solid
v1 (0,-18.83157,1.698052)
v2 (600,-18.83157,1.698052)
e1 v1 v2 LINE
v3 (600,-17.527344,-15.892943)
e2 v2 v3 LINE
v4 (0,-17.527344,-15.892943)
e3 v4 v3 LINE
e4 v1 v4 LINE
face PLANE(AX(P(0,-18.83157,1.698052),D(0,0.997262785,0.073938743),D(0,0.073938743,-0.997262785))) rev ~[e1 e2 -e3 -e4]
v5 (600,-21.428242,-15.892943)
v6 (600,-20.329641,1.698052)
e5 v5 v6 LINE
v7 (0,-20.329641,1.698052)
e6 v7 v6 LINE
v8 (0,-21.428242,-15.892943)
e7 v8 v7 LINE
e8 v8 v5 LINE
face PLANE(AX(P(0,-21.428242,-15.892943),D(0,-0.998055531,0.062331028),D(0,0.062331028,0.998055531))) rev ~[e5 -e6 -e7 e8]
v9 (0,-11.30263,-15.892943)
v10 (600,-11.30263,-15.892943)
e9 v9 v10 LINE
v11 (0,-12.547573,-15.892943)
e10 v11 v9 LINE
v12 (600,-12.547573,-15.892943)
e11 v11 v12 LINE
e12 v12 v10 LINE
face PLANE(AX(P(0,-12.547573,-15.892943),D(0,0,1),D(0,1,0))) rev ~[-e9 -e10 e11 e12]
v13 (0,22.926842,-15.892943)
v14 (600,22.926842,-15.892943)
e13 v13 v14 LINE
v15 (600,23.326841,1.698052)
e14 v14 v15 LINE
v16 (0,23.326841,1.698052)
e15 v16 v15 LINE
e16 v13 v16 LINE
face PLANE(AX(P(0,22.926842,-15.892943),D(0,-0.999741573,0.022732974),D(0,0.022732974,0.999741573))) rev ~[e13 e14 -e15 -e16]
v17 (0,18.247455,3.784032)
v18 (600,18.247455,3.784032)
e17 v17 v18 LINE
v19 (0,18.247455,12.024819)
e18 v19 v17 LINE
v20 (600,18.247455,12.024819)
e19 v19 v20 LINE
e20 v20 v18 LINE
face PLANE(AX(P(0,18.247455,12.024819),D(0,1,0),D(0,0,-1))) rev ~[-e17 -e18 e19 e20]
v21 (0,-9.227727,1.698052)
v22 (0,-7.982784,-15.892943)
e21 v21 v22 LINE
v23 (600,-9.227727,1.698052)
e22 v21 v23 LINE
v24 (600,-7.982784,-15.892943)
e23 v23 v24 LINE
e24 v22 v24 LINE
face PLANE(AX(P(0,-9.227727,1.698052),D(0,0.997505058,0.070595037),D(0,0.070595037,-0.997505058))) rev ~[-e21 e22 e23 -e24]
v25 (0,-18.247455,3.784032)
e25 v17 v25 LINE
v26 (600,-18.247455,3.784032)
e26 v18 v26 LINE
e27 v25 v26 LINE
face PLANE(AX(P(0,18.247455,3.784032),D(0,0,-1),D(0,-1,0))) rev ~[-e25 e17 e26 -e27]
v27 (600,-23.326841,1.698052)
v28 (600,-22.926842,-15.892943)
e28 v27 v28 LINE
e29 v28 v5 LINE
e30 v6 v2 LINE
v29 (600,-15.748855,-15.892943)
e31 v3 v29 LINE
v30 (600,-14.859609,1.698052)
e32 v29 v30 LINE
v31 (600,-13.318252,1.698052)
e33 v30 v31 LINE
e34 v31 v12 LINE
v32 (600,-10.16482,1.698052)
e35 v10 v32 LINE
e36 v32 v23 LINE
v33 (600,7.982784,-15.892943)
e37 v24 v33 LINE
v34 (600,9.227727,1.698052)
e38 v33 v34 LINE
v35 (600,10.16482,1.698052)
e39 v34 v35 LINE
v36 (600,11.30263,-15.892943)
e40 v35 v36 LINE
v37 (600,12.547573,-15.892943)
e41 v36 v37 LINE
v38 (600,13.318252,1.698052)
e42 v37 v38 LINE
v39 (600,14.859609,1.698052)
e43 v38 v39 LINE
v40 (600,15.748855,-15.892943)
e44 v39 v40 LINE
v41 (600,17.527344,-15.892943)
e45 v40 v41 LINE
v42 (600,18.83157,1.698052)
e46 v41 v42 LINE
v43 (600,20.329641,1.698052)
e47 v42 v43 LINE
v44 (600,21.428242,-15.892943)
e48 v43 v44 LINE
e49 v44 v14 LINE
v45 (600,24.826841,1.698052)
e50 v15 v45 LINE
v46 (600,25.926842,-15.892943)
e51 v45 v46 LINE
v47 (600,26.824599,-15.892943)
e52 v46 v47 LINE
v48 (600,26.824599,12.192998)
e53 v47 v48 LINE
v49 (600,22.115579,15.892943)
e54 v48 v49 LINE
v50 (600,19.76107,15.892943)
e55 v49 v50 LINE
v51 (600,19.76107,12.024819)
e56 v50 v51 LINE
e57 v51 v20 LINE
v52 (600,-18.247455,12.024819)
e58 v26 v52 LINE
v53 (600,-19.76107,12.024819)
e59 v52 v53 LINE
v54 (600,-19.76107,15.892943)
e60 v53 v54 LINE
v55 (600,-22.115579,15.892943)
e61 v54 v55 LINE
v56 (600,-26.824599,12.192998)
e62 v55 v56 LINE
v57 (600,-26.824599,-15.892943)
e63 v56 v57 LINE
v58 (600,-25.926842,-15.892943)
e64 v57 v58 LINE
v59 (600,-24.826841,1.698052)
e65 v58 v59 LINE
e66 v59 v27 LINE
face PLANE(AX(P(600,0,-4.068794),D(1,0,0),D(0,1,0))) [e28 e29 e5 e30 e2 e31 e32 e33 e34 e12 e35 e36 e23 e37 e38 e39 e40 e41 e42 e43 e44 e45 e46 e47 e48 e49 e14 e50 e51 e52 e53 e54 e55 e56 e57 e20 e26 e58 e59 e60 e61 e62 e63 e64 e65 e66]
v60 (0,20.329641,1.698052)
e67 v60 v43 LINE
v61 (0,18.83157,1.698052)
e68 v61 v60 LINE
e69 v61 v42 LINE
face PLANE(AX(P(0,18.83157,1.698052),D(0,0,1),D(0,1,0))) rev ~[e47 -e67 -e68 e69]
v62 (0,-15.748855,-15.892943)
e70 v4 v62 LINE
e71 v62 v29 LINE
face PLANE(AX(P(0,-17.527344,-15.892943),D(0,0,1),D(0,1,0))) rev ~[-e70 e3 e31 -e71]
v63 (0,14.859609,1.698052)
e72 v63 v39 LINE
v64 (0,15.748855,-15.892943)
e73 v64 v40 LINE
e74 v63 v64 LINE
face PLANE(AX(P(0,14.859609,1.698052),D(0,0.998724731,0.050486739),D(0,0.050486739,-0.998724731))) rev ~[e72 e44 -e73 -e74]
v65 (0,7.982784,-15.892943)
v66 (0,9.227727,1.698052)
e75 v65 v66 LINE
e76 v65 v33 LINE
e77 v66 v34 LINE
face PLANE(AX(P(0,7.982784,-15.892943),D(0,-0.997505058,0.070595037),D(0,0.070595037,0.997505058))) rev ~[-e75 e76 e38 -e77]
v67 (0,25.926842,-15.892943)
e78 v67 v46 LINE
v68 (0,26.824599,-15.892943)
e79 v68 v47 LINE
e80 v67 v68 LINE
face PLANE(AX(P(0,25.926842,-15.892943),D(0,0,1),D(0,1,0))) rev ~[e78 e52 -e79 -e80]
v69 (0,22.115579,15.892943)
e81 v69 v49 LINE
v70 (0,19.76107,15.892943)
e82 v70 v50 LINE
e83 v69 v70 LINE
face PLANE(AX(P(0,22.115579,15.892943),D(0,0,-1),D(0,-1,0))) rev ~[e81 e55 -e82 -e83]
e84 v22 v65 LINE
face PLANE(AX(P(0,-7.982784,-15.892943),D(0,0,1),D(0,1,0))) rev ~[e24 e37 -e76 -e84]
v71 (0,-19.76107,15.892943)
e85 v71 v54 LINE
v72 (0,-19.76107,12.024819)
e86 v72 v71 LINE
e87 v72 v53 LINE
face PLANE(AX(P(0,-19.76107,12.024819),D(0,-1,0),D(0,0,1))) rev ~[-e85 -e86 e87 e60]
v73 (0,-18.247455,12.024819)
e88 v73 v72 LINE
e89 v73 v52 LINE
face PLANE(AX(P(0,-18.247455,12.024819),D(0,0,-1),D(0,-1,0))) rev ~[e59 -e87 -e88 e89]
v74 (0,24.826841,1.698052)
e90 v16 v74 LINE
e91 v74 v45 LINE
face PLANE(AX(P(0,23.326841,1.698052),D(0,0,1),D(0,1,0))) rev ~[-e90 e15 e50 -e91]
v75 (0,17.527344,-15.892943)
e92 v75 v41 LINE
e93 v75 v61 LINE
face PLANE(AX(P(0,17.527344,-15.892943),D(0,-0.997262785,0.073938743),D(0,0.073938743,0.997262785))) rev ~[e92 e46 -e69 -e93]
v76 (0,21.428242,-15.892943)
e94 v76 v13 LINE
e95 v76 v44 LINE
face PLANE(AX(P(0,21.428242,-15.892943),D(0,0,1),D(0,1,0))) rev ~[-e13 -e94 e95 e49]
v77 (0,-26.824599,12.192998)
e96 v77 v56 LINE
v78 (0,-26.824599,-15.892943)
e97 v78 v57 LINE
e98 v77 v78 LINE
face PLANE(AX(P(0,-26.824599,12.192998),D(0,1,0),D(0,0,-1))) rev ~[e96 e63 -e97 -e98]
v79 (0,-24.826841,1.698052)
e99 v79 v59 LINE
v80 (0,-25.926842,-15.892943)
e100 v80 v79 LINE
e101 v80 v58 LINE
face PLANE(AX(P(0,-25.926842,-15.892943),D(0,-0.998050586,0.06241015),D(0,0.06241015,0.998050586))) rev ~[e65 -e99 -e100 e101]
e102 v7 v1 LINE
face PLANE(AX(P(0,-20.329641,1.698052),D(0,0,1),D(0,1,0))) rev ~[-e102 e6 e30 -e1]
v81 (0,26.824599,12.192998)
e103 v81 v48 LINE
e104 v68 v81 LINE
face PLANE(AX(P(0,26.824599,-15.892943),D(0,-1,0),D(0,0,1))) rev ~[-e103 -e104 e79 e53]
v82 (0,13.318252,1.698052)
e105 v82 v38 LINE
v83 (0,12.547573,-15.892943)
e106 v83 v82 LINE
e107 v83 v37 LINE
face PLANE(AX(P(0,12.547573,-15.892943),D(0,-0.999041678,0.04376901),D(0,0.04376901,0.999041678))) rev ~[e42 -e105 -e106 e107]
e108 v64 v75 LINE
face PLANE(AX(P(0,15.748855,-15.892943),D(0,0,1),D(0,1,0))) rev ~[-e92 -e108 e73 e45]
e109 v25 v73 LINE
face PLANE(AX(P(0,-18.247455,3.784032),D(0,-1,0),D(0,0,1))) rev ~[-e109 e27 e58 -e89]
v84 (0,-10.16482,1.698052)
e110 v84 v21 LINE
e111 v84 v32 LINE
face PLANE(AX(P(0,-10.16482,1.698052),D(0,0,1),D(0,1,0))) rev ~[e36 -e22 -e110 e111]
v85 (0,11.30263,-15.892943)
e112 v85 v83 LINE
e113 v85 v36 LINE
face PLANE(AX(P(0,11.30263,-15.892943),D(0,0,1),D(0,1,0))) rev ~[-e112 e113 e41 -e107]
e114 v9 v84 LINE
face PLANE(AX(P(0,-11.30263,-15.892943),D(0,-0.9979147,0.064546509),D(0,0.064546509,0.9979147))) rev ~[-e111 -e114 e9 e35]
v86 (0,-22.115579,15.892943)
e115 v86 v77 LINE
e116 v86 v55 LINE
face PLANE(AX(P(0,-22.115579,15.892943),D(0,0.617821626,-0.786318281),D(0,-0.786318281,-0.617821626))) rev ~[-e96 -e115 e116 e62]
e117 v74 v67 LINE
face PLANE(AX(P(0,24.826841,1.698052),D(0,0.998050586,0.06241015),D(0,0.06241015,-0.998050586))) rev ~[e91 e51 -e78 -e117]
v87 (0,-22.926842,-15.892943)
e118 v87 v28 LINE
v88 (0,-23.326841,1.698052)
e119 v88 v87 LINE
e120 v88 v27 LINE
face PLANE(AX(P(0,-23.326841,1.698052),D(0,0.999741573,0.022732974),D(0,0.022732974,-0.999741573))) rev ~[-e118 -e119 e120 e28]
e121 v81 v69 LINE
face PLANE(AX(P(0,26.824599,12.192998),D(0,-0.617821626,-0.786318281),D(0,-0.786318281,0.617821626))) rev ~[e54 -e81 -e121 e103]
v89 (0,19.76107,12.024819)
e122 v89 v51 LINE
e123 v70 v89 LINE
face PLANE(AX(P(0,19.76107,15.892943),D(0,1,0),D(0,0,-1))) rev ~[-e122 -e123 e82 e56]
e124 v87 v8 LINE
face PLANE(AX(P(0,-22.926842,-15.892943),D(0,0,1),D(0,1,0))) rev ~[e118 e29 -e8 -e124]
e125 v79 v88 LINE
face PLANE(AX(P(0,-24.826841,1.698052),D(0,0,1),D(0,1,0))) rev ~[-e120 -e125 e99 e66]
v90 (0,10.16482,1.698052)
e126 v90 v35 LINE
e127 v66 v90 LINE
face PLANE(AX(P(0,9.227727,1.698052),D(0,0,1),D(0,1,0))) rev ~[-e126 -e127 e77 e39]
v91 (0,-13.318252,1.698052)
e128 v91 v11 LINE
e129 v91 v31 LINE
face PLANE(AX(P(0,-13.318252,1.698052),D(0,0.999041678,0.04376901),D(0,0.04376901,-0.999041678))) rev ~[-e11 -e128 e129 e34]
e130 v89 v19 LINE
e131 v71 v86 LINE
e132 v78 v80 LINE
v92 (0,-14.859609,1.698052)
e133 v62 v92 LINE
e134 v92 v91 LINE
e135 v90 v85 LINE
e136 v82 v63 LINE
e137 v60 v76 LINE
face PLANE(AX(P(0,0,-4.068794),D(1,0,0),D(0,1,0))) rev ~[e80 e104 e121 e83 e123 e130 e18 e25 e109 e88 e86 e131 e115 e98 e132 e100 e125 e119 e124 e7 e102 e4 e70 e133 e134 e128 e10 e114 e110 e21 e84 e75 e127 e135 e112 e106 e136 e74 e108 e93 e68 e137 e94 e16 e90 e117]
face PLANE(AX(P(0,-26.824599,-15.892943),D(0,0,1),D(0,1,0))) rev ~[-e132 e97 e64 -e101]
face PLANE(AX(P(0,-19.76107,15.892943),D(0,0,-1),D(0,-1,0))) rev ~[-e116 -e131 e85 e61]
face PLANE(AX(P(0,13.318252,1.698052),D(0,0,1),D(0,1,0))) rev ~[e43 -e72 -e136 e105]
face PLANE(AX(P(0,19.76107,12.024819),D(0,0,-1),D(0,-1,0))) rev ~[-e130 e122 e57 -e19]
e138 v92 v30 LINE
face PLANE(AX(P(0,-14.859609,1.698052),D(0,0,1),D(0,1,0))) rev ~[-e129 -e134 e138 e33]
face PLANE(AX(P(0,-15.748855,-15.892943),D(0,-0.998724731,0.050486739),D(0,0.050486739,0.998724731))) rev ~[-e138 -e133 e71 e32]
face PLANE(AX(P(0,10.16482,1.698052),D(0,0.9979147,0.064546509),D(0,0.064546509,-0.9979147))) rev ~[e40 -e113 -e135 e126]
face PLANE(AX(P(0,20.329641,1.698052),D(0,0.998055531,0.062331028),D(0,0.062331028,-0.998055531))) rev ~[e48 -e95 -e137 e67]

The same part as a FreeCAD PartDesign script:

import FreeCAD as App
import Part
import Sketcher

doc = App.newDocument("Part")
body = doc.addObject("PartDesign::Body", "Body")

# Sketch on YZ plane
sketch1 = doc.addObject("Sketcher::SketchObject", "Sketch")
body.addObject(sketch1)
sketch1.AttachmentSupport = (doc.YZ_Plane, [""])
sketch1.MapMode = "FlatFace"
sketch1.addGeometry([
    Part.LineSegment(App.Vector(-19.76107, 15.892943, 0), App.Vector(-22.115579, 15.892943, 0)),  # 0
    Part.LineSegment(App.Vector(-22.115579, 15.892943, 0), App.Vector(-26.824599, 12.192998, 0)),  # 1
    Part.LineSegment(App.Vector(-26.824599, 12.192998, 0), App.Vector(-26.824599, -15.892943, 0)),  # 2
    Part.LineSegment(App.Vector(-26.824599, -15.892943, 0), App.Vector(-25.926842, -15.892943, 0)),  # 3
    Part.LineSegment(App.Vector(-25.926842, -15.892943, 0), App.Vector(-24.826841, 1.698052, 0)),  # 4
    Part.LineSegment(App.Vector(-24.826841, 1.698052, 0), App.Vector(-23.326841, 1.698052, 0)),  # 5
    Part.LineSegment(App.Vector(-23.326841, 1.698052, 0), App.Vector(-22.926842, -15.892943, 0)),  # 6
    Part.LineSegment(App.Vector(-22.926842, -15.892943, 0), App.Vector(-21.428242, -15.892943, 0)),  # 7
    Part.LineSegment(App.Vector(-21.428242, -15.892943, 0), App.Vector(-20.329641, 1.698052, 0)),  # 8
    Part.LineSegment(App.Vector(-20.329641, 1.698052, 0), App.Vector(-18.83157, 1.698052, 0)),  # 9
    Part.LineSegment(App.Vector(-18.83157, 1.698052, 0), App.Vector(-17.527344, -15.892943, 0)),  # 10
    Part.LineSegment(App.Vector(-17.527344, -15.892943, 0), App.Vector(-15.748855, -15.892943, 0)),  # 11
    Part.LineSegment(App.Vector(-15.748855, -15.892943, 0), App.Vector(-14.859609, 1.698052, 0)),  # 12
    Part.LineSegment(App.Vector(-14.859609, 1.698052, 0), App.Vector(-13.318252, 1.698052, 0)),  # 13
    Part.LineSegment(App.Vector(-13.318252, 1.698052, 0), App.Vector(-12.547573, -15.892943, 0)),  # 14
    Part.LineSegment(App.Vector(-12.547573, -15.892943, 0), App.Vector(-11.30263, -15.892943, 0)),  # 15
    Part.LineSegment(App.Vector(-11.30263, -15.892943, 0), App.Vector(-10.16482, 1.698052, 0)),  # 16
    Part.LineSegment(App.Vector(-10.16482, 1.698052, 0), App.Vector(-9.227727, 1.698052, 0)),  # 17
    Part.LineSegment(App.Vector(-9.227727, 1.698052, 0), App.Vector(-7.982784, -15.892943, 0)),  # 18
    Part.LineSegment(App.Vector(-7.982784, -15.892943, 0), App.Vector(7.982784, -15.892943, 0)),  # 19
    Part.LineSegment(App.Vector(7.982784, -15.892943, 0), App.Vector(9.227727, 1.698052, 0)),  # 20
    Part.LineSegment(App.Vector(9.227727, 1.698052, 0), App.Vector(10.16482, 1.698052, 0)),  # 21
    Part.LineSegment(App.Vector(10.16482, 1.698052, 0), App.Vector(11.30263, -15.892943, 0)),  # 22
    Part.LineSegment(App.Vector(11.30263, -15.892943, 0), App.Vector(12.547573, -15.892943, 0)),  # 23
    Part.LineSegment(App.Vector(12.547573, -15.892943, 0), App.Vector(13.318252, 1.698052, 0)),  # 24
    Part.LineSegment(App.Vector(13.318252, 1.698052, 0), App.Vector(14.859609, 1.698052, 0)),  # 25
    Part.LineSegment(App.Vector(14.859609, 1.698052, 0), App.Vector(15.748855, -15.892943, 0)),  # 26
    Part.LineSegment(App.Vector(15.748855, -15.892943, 0), App.Vector(17.527344, -15.892943, 0)),  # 27
    Part.LineSegment(App.Vector(17.527344, -15.892943, 0), App.Vector(18.83157, 1.698052, 0)),  # 28
    Part.LineSegment(App.Vector(18.83157, 1.698052, 0), App.Vector(20.329641, 1.698052, 0)),  # 29
    Part.LineSegment(App.Vector(20.329641, 1.698052, 0), App.Vector(21.428242, -15.892943, 0)),  # 30
    Part.LineSegment(App.Vector(21.428242, -15.892943, 0), App.Vector(22.926842, -15.892943, 0)),  # 31
    Part.LineSegment(App.Vector(22.926842, -15.892943, 0), App.Vector(23.326841, 1.698052, 0)),  # 32
    Part.LineSegment(App.Vector(23.326841, 1.698052, 0), App.Vector(24.826841, 1.698052, 0)),  # 33
    Part.LineSegment(App.Vector(24.826841, 1.698052, 0), App.Vector(25.926842, -15.892943, 0)),  # 34
    Part.LineSegment(App.Vector(25.926842, -15.892943, 0), App.Vector(26.824599, -15.892943, 0)),  # 35
    Part.LineSegment(App.Vector(26.824599, -15.892943, 0), App.Vector(26.824599, 12.192998, 0)),  # 36
    Part.LineSegment(App.Vector(26.824599, 12.192998, 0), App.Vector(22.115579, 15.892943, 0)),  # 37
    Part.LineSegment(App.Vector(22.115579, 15.892943, 0), App.Vector(19.76107, 15.892943, 0)),  # 38
    Part.LineSegment(App.Vector(19.76107, 15.892943, 0), App.Vector(19.76107, 12.024819, 0)),  # 39
    Part.LineSegment(App.Vector(19.76107, 12.024819, 0), App.Vector(18.247455, 12.024819, 0)),  # 40
    Part.LineSegment(App.Vector(18.247455, 12.024819, 0), App.Vector(18.247455, 3.784032, 0)),  # 41
    Part.LineSegment(App.Vector(18.247455, 3.784032, 0), App.Vector(-18.247455, 3.784032, 0)),  # 42
    Part.LineSegment(App.Vector(-18.247455, 3.784032, 0), App.Vector(-18.247455, 12.024819, 0)),  # 43
    Part.LineSegment(App.Vector(-18.247455, 12.024819, 0), App.Vector(-19.76107, 12.024819, 0)),  # 44
    Part.LineSegment(App.Vector(-19.76107, 12.024819, 0), App.Vector(-19.76107, 15.892943, 0)),  # 45
], False)
sketch1.addConstraint([
    Sketcher.Constraint("Coincident", 0, 2, 1, 1),
    Sketcher.Constraint("Coincident", 1, 2, 2, 1),
    Sketcher.Constraint("Coincident", 2, 2, 3, 1),
    Sketcher.Constraint("Coincident", 3, 2, 4, 1),
    Sketcher.Constraint("Coincident", 4, 2, 5, 1),
    Sketcher.Constraint("Coincident", 5, 2, 6, 1),
    Sketcher.Constraint("Coincident", 6, 2, 7, 1),
    Sketcher.Constraint("Coincident", 7, 2, 8, 1),
    Sketcher.Constraint("Coincident", 8, 2, 9, 1),
    Sketcher.Constraint("Coincident", 9, 2, 10, 1),
    Sketcher.Constraint("Coincident", 10, 2, 11, 1),
    Sketcher.Constraint("Coincident", 11, 2, 12, 1),
    Sketcher.Constraint("Coincident", 12, 2, 13, 1),
    Sketcher.Constraint("Coincident", 13, 2, 14, 1),
    Sketcher.Constraint("Coincident", 14, 2, 15, 1),
    Sketcher.Constraint("Coincident", 15, 2, 16, 1),
    Sketcher.Constraint("Coincident", 16, 2, 17, 1),
    Sketcher.Constraint("Coincident", 17, 2, 18, 1),
    Sketcher.Constraint("Coincident", 18, 2, 19, 1),
    Sketcher.Constraint("Coincident", 19, 2, 20, 1),
    Sketcher.Constraint("Coincident", 20, 2, 21, 1),
    Sketcher.Constraint("Coincident", 21, 2, 22, 1),
    Sketcher.Constraint("Coincident", 22, 2, 23, 1),
    Sketcher.Constraint("Coincident", 23, 2, 24, 1),
    Sketcher.Constraint("Coincident", 24, 2, 25, 1),
    Sketcher.Constraint("Coincident", 25, 2, 26, 1),
    Sketcher.Constraint("Coincident", 26, 2, 27, 1),
    Sketcher.Constraint("Coincident", 27, 2, 28, 1),
    Sketcher.Constraint("Coincident", 28, 2, 29, 1),
    Sketcher.Constraint("Coincident", 29, 2, 30, 1),
    Sketcher.Constraint("Coincident", 30, 2, 31, 1),
    Sketcher.Constraint("Coincident", 31, 2, 32, 1),
    Sketcher.Constraint("Coincident", 32, 2, 33, 1),
    Sketcher.Constraint("Coincident", 33, 2, 34, 1),
    Sketcher.Constraint("Coincident", 34, 2, 35, 1),
    Sketcher.Constraint("Coincident", 35, 2, 36, 1),
    Sketcher.Constraint("Coincident", 36, 2, 37, 1),
    Sketcher.Constraint("Coincident", 37, 2, 38, 1),
    Sketcher.Constraint("Coincident", 38, 2, 39, 1),
    Sketcher.Constraint("Coincident", 39, 2, 40, 1),
    Sketcher.Constraint("Coincident", 40, 2, 41, 1),
    Sketcher.Constraint("Coincident", 41, 2, 42, 1),
    Sketcher.Constraint("Coincident", 42, 2, 43, 1),
    Sketcher.Constraint("Coincident", 43, 2, 44, 1),
    Sketcher.Constraint("Coincident", 44, 2, 45, 1),
    Sketcher.Constraint("Coincident", 45, 2, 0, 1),
    Sketcher.Constraint("Horizontal", 0),
    Sketcher.Constraint("Vertical", 2),
    Sketcher.Constraint("Horizontal", 3),
    Sketcher.Constraint("Horizontal", 5),
    Sketcher.Constraint("Horizontal", 7),
    Sketcher.Constraint("Horizontal", 9),
    Sketcher.Constraint("Horizontal", 11),
    Sketcher.Constraint("Horizontal", 13),
    Sketcher.Constraint("Horizontal", 15),
    Sketcher.Constraint("Horizontal", 17),
    Sketcher.Constraint("Horizontal", 19),
    Sketcher.Constraint("Horizontal", 21),
    Sketcher.Constraint("Horizontal", 23),
    Sketcher.Constraint("Horizontal", 25),
    Sketcher.Constraint("Horizontal", 27),
    Sketcher.Constraint("Horizontal", 29),
    Sketcher.Constraint("Horizontal", 31),
    Sketcher.Constraint("Horizontal", 33),
    Sketcher.Constraint("Horizontal", 35),
    Sketcher.Constraint("Vertical", 36),
    Sketcher.Constraint("Horizontal", 38),
    Sketcher.Constraint("Vertical", 39),
    Sketcher.Constraint("Horizontal", 40),
    Sketcher.Constraint("Vertical", 41),
    Sketcher.Constraint("Horizontal", 42),
    Sketcher.Constraint("Vertical", 43),
    Sketcher.Constraint("Horizontal", 44),
    Sketcher.Constraint("Vertical", 45),
    Sketcher.Constraint("Symmetric", 17, 2, 20, 2, -2),
    Sketcher.Constraint("Symmetric", 15, 2, 22, 2, -2),
    Sketcher.Constraint("Symmetric", 13, 2, 24, 2, -2),
    Sketcher.Constraint("Symmetric", 11, 2, 26, 2, -2),
    Sketcher.Constraint("Symmetric", 9, 2, 28, 2, -2),
    Sketcher.Constraint("Symmetric", 7, 2, 30, 2, -2),
    Sketcher.Constraint("Symmetric", 5, 2, 32, 2, -2),
    Sketcher.Constraint("Symmetric", 3, 2, 34, 2, -2),
    Sketcher.Constraint("Symmetric", 1, 2, 36, 2, -2),
    Sketcher.Constraint("Symmetric", 0, 2, 37, 2, -2),
    Sketcher.Constraint("Symmetric", 40, 2, 43, 2, -2),
    Sketcher.Constraint("Horizontal", 3, 2, 6, 2),
    Sketcher.Constraint("Horizontal", 5, 2, 8, 2),
    Sketcher.Constraint("Horizontal", 7, 2, 10, 2),
    Sketcher.Constraint("Horizontal", 9, 2, 12, 2),
    Sketcher.Constraint("Horizontal", 11, 2, 14, 2),
    Sketcher.Constraint("Horizontal", 13, 2, 16, 2),
    Sketcher.Constraint("Horizontal", 15, 2, 18, 2),
    Sketcher.Constraint("Equal", 17, 21),
    Sketcher.Constraint("Equal", 15, 23),
    Sketcher.Constraint("Equal", 13, 25),
    Sketcher.Constraint("Equal", 11, 27),
    Sketcher.Constraint("Equal", 9, 29),
    Sketcher.Constraint("Equal", 7, 31),
    Sketcher.Constraint("Equal", 5, 33),
    Sketcher.Constraint("Equal", 0, 38),
    Sketcher.Constraint("Equal", 18, 20),
    Sketcher.Constraint("DistanceX", 5, 1, 5, 2, 1.5),
    Sketcher.Constraint("DistanceX", 3, 2, 6, 2, 3.0),
    Sketcher.Constraint("DistanceX", 3, 2, 4, 2, 1.100001),
    Sketcher.Constraint("DistanceX", 7, 1, 7, 2, 1.4986),
    Sketcher.Constraint("DistanceX", 0, 2, 0, 1, 2.354509),
    Sketcher.Constraint("DistanceX", 9, 1, 9, 2, 1.498071),
    Sketcher.Constraint("DistanceX", 11, 1, 11, 2, 1.778489),
    Sketcher.Constraint("DistanceX", 42, 2, 42, 1, 36.49491),
    Sketcher.Constraint("DistanceY", 2, 2, 2, 1, 28.085941),
    Sketcher.Constraint("DistanceX", 1, 2, -1, 1, 26.824599),
    Sketcher.Constraint("DistanceX", 5, 2, 8, 2, 2.9972),
    Sketcher.Constraint("DistanceX", 7, 2, 10, 2, 3.900898),
    Sketcher.Constraint("DistanceX", 28, 2, 38, 2, 0.9295),
    Sketcher.Constraint("Distance", 14, 17.607869),
    Sketcher.Constraint("DistanceX", 3, 1, 3, 2, 0.897757),
    Sketcher.Constraint("DistanceX", 13, 1, 13, 2, 1.541357),
    Sketcher.Constraint("DistanceX", 15, 1, 15, 2, 1.244943),
    Sketcher.Constraint("DistanceX", 17, 1, 17, 2, 0.937093),
    Sketcher.Constraint("DistanceX", 19, 1, 19, 2, 15.965568),
    Sketcher.Constraint("DistanceY", 39, 2, 39, 1, 3.868124),
    Sketcher.Constraint("DistanceY", 41, 2, 41, 1, 8.240787),
    Sketcher.Constraint("DistanceY", -1, 1, 4, 2, 1.698052),
    Sketcher.Constraint("DistanceX", 12, 2, -1, 1, 14.859609),
    Sketcher.Constraint("DistanceX", 15, 2, -1, 1, 11.30263),
    Sketcher.Constraint("DistanceX", 16, 2, -1, 1, 10.16482),
    Sketcher.Constraint("DistanceY", -1, 1, 39, 2, 12.024819),
])
pad1 = doc.addObject("PartDesign::Pad", "Pad")
body.addObject(pad1)
pad1.Profile = sketch1
pad1.Length = 600

doc.recompute()
